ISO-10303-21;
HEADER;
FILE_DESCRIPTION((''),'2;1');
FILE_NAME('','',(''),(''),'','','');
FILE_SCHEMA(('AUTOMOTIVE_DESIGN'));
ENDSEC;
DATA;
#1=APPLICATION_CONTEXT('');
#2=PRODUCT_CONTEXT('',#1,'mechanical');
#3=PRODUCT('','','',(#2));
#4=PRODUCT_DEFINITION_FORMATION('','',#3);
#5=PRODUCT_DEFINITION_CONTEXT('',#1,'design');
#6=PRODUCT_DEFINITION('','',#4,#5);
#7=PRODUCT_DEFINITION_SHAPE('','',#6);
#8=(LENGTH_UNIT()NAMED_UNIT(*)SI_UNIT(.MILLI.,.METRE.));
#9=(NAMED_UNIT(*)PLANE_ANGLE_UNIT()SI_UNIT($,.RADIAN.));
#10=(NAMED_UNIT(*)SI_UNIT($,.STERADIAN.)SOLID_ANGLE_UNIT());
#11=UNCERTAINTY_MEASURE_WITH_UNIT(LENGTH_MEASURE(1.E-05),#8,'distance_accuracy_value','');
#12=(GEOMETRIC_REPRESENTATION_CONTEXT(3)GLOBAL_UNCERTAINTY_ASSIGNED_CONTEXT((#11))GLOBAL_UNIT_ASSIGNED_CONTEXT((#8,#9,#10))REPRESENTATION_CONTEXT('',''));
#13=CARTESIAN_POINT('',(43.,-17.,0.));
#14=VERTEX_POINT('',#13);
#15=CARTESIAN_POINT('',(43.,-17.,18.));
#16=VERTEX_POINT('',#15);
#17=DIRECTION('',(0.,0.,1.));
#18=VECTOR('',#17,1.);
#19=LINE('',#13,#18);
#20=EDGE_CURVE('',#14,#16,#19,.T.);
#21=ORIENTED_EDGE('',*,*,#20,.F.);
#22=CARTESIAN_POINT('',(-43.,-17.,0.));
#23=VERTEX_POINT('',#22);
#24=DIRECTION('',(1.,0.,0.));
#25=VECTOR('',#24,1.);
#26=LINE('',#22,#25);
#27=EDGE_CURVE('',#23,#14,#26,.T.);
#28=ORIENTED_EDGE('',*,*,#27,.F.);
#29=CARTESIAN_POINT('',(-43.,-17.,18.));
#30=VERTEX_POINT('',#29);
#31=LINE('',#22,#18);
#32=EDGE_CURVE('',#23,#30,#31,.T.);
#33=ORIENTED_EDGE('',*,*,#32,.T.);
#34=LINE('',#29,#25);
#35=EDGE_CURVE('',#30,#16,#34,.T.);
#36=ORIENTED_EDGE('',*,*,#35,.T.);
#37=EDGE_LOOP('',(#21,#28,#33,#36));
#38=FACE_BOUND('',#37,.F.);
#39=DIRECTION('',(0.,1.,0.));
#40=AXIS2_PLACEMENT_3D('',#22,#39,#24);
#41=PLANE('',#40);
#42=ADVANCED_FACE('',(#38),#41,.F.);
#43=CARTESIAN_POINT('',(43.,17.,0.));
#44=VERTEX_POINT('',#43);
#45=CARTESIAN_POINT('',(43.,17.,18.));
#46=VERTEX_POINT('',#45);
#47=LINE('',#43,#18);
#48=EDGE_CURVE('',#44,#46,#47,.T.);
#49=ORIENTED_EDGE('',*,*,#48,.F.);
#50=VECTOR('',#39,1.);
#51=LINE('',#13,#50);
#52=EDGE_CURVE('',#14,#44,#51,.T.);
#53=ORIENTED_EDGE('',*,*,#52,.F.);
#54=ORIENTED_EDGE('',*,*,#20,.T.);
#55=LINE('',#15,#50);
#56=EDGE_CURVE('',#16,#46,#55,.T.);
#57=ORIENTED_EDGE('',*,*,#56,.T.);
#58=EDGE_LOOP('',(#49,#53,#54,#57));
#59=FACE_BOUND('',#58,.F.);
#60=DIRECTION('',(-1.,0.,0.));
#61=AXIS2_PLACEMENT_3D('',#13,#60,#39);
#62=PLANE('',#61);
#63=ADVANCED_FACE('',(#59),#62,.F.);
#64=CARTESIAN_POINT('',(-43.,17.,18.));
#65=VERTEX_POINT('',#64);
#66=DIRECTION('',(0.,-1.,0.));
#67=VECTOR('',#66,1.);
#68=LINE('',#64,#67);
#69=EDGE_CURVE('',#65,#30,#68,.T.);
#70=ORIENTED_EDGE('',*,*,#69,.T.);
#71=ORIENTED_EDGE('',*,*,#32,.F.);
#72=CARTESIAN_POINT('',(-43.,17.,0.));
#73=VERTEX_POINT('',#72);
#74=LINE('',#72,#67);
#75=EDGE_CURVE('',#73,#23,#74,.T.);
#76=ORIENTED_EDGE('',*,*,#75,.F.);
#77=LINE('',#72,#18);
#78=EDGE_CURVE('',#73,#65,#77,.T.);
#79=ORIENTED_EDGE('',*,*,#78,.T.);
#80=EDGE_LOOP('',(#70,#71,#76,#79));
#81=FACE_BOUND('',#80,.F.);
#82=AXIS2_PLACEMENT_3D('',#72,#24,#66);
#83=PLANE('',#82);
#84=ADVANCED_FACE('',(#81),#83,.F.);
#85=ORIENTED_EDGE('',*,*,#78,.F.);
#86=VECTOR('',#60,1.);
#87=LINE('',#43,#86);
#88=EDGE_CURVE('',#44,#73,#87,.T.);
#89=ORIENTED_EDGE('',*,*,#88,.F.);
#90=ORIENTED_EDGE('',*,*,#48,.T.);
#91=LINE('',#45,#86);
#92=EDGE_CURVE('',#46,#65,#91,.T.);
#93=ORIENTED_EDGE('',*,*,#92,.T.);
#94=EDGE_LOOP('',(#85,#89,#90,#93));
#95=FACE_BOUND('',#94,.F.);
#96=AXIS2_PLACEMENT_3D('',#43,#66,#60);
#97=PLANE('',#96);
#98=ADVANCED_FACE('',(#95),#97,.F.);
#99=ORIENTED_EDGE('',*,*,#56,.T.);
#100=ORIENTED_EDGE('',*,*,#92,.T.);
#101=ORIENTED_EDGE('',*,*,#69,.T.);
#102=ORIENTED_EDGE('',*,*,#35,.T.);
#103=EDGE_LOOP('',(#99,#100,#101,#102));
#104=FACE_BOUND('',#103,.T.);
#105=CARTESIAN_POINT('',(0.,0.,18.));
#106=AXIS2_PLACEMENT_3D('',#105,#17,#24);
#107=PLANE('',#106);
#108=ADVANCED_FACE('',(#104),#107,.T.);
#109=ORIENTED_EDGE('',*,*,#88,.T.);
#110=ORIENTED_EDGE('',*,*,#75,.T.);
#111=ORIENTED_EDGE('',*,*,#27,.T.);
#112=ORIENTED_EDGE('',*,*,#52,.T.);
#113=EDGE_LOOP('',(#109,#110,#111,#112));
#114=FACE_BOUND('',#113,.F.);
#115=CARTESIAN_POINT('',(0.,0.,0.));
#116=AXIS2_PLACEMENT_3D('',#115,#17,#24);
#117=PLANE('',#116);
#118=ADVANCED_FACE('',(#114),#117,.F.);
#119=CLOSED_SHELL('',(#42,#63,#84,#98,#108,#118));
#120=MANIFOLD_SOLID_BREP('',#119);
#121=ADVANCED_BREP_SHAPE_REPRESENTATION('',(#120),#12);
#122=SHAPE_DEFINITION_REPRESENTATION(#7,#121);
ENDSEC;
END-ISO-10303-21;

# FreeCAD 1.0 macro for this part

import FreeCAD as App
import Part
import Sketcher
Q = App.Units.Quantity


def add_polygon(sketch, points):
    """Adds a closed chain of lines whose ends are joined by coincident constraints."""
    first, n = sketch.GeometryCount, len(points)
    for a, b in zip(points, points[1:] + points[:1]):
        sketch.addGeometry(Part.LineSegment(App.Vector(*a, 0), App.Vector(*b, 0)), False)
    for i in range(n):
        sketch.addConstraint(Sketcher.Constraint("Coincident", first + i, 2, first + (i + 1) % n, 1))

doc = App.newDocument("Part")
body = doc.addObject("PartDesign::Body", "Body")

sketch1 = doc.addObject("Sketcher::SketchObject", "Sketch")
body.addObject(sketch1)
sketch1.AttachmentSupport = (doc.XY_Plane, [""])
sketch1.MapMode = "FlatFace"
add_polygon(sketch1, [(-43, 17), (-43, -17), (43, -17), (43, 17)])
sketch1.addConstraint(Sketcher.Constraint("Vertical", 0))
sketch1.addConstraint(Sketcher.Constraint("Horizontal", 1))
sketch1.addConstraint(Sketcher.Constraint("Vertical", 2))
sketch1.addConstraint(Sketcher.Constraint("Horizontal", 3))
sketch1.addConstraint(Sketcher.Constraint("Symmetric", 0, 2, 2, 2, -1, 1))
sketch1.addConstraint(Sketcher.Constraint("DistanceX", 1, 1, 1, 2, Q("86 mm")))
sketch1.addConstraint(Sketcher.Constraint("DistanceY", 0, 2, 0, 1, Q("34 mm")))
pad1 = doc.addObject("PartDesign::Pad", "Pad")
body.addObject(pad1)
pad1.Profile = sketch1
pad1.Length = 18

doc.recompute()
